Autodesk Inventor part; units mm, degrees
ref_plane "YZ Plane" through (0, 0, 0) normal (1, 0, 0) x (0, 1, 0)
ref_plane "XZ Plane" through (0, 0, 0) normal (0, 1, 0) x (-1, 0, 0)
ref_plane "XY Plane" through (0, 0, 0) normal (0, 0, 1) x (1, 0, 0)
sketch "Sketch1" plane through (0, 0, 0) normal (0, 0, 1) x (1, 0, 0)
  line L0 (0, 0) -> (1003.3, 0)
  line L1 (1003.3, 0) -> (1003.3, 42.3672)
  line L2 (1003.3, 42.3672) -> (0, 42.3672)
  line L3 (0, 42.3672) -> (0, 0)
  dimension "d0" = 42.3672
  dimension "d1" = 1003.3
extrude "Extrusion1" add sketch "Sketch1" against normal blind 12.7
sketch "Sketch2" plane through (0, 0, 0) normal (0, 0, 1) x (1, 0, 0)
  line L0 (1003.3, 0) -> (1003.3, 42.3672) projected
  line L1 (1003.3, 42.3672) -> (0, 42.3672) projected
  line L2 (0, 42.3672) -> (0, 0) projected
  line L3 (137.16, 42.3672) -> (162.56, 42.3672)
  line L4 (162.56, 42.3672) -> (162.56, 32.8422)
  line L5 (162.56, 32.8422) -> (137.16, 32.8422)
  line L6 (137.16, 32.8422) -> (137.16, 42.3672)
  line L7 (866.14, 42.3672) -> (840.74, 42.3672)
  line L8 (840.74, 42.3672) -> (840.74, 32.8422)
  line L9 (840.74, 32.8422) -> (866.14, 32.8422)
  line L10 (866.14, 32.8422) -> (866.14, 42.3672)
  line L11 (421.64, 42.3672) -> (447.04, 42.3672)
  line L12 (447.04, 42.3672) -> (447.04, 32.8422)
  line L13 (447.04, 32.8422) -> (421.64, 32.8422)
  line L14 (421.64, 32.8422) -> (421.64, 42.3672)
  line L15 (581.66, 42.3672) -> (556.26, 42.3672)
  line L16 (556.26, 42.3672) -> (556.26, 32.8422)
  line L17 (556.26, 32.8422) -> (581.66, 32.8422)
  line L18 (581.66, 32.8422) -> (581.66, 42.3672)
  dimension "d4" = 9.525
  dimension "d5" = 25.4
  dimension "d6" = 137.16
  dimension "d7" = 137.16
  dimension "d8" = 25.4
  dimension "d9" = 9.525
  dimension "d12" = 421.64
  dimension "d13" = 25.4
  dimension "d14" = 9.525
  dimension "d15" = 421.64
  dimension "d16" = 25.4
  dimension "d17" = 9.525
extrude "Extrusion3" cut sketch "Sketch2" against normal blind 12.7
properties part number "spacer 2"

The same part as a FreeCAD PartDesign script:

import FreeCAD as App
import Part
import Sketcher

V = App.Vector
Q = App.Units.Quantity

doc = App.newDocument("Part")
body = doc.addObject("PartDesign::Body", "Body")

# Sketch on XY plane
sketch1 = body.newObject("Sketcher::SketchObject", "Sketch")
sketch1.AttachmentSupport = (doc.getObject("XY_Plane"), [""])
sketch1.MapMode = "FlatFace"
sketch1.addGeometry([
    Part.LineSegment(V(0, 42.3672, 0), V(0, 0, 0)),
    Part.LineSegment(V(0, 0, 0), V(1003.3, 0, 0)),
    Part.LineSegment(V(1003.3, 0, 0), V(1003.3, 42.3672, 0)),
    Part.LineSegment(V(1003.3, 42.3672, 0), V(0, 42.3672, 0)),
], False)
sketch1.addConstraint([
    Sketcher.Constraint("Coincident", 0, 2, 1, 1),
    Sketcher.Constraint("Coincident", 1, 2, 2, 1),
    Sketcher.Constraint("Coincident", 2, 2, 3, 1),
    Sketcher.Constraint("Coincident", 3, 2, 0, 1),
    Sketcher.Constraint("Vertical", 0),
    Sketcher.Constraint("Horizontal", 1),
    Sketcher.Constraint("Vertical", 2),
    Sketcher.Constraint("Horizontal", 3),
    Sketcher.Constraint("Coincident", 0, 2, -1, 1),
    Sketcher.Constraint("DistanceX", 1, 1, 1, 2, Q("39.5 in")),
    Sketcher.Constraint("DistanceY", 0, 2, 0, 1, Q("1.668 in")),
])
pad1 = body.newObject("PartDesign::Pad", "Pad")
pad1.Profile = sketch1
pad1.Length = Q("0.5 in")
pad1.Reversed = True

# Sketch on XY plane
sketch2 = body.newObject("Sketcher::SketchObject", "Sketch001")
sketch2.AttachmentSupport = (doc.getObject("XY_Plane"), [""])
sketch2.MapMode = "FlatFace"
sketch2.addGeometry([
    Part.LineSegment(V(866.14, 32.8422, 0), V(866.14, 42.3672, 0)),  # 0
    Part.LineSegment(V(866.14, 42.3672, 0), V(840.74, 42.3672, 0)),  # 1
    Part.LineSegment(V(840.74, 42.3672, 0), V(840.74, 32.8422, 0)),  # 2
    Part.LineSegment(V(840.74, 32.8422, 0), V(866.14, 32.8422, 0)),  # 3
    Part.LineSegment(V(162.56, 32.8422, 0), V(162.56, 42.3672, 0)),  # 4
    Part.LineSegment(V(162.56, 42.3672, 0), V(137.16, 42.3672, 0)),  # 5
    Part.LineSegment(V(137.16, 42.3672, 0), V(137.16, 32.8422, 0)),  # 6
    Part.LineSegment(V(137.16, 32.8422, 0), V(162.56, 32.8422, 0)),  # 7
    Part.LineSegment(V(447.04, 32.8422, 0), V(447.04, 42.3672, 0)),  # 8
    Part.LineSegment(V(447.04, 42.3672, 0), V(421.64, 42.3672, 0)),  # 9
    Part.LineSegment(V(421.64, 42.3672, 0), V(421.64, 32.8422, 0)),  # 10
    Part.LineSegment(V(421.64, 32.8422, 0), V(447.04, 32.8422, 0)),  # 11
    Part.LineSegment(V(581.66, 32.8422, 0), V(581.66, 42.3672, 0)),  # 12
    Part.LineSegment(V(581.66, 42.3672, 0), V(556.26, 42.3672, 0)),  # 13
    Part.LineSegment(V(556.26, 42.3672, 0), V(556.26, 32.8422, 0)),  # 14
    Part.LineSegment(V(556.26, 32.8422, 0), V(581.66, 32.8422, 0)),  # 15
], False)
sketch2.addConstraint([
    Sketcher.Constraint("Coincident", 0, 2, 1, 1),
    Sketcher.Constraint("Coincident", 1, 2, 2, 1),
    Sketcher.Constraint("Coincident", 2, 2, 3, 1),
    Sketcher.Constraint("Coincident", 3, 2, 0, 1),
    Sketcher.Constraint("Coincident", 4, 2, 5, 1),
    Sketcher.Constraint("Coincident", 5, 2, 6, 1),
    Sketcher.Constraint("Coincident", 6, 2, 7, 1),
    Sketcher.Constraint("Coincident", 7, 2, 4, 1),
    Sketcher.Constraint("Coincident", 8, 2, 9, 1),
    Sketcher.Constraint("Coincident", 9, 2, 10, 1),
    Sketcher.Constraint("Coincident", 10, 2, 11, 1),
    Sketcher.Constraint("Coincident", 11, 2, 8, 1),
    Sketcher.Constraint("Coincident", 12, 2, 13, 1),
    Sketcher.Constraint("Coincident", 13, 2, 14, 1),
    Sketcher.Constraint("Coincident", 14, 2, 15, 1),
    Sketcher.Constraint("Coincident", 15, 2, 12, 1),
    Sketcher.Constraint("Vertical", 0),
    Sketcher.Constraint("Horizontal", 1),
    Sketcher.Constraint("Vertical", 2),
    Sketcher.Constraint("Horizontal", 3),
    Sketcher.Constraint("Vertical", 4),
    Sketcher.Constraint("Horizontal", 5),
    Sketcher.Constraint("Vertical", 6),
    Sketcher.Constraint("Horizontal", 7),
    Sketcher.Constraint("Vertical", 8),
    Sketcher.Constraint("Horizontal", 9),
    Sketcher.Constraint("Vertical", 10),
    Sketcher.Constraint("Horizontal", 11),
    Sketcher.Constraint("Vertical", 12),
    Sketcher.Constraint("Horizontal", 13),
    Sketcher.Constraint("Vertical", 14),
    Sketcher.Constraint("Horizontal", 15),
    Sketcher.Constraint("Horizontal", 1, 2, 4, 2),
    Sketcher.Constraint("Horizontal", 3, 2, 6, 2),
    Sketcher.Constraint("Horizontal", 5, 2, 8, 2),
    Sketcher.Constraint("Horizontal", 7, 2, 10, 2),
    Sketcher.Constraint("Horizontal", 9, 2, 12, 2),
    Sketcher.Constraint("Horizontal", 11, 2, 14, 2),
    Sketcher.Constraint("Equal", 3, 5),
    Sketcher.Constraint("Equal", 7, 9),
    Sketcher.Constraint("Equal", 11, 13),
    Sketcher.Constraint("DistanceX", 1, 2, 1, 1, Q("1 in")),
    Sketcher.Constraint("DistanceX", -1, 1, 5, 2, Q("5.4 in")),
    Sketcher.Constraint("DistanceX", -1, 1, 9, 2, Q("16.6 in")),
    Sketcher.Constraint("DistanceY", 0, 1, 0, 2, Q("0.375 in")),
    Sketcher.Constraint("DistanceX", -1, 1, 0, 2, Q("34.1 in")),
    Sketcher.Constraint("DistanceX", -1, 1, 12, 2, Q("22.9 in")),
    Sketcher.Constraint("DistanceY", -1, 1, 0, 2, Q("1.668 in")),
])
pocket1 = body.newObject("PartDesign::Pocket", "Pocket")
pocket1.Profile = sketch2
pocket1.Length = Q("0.5 in")

doc.recompute()
